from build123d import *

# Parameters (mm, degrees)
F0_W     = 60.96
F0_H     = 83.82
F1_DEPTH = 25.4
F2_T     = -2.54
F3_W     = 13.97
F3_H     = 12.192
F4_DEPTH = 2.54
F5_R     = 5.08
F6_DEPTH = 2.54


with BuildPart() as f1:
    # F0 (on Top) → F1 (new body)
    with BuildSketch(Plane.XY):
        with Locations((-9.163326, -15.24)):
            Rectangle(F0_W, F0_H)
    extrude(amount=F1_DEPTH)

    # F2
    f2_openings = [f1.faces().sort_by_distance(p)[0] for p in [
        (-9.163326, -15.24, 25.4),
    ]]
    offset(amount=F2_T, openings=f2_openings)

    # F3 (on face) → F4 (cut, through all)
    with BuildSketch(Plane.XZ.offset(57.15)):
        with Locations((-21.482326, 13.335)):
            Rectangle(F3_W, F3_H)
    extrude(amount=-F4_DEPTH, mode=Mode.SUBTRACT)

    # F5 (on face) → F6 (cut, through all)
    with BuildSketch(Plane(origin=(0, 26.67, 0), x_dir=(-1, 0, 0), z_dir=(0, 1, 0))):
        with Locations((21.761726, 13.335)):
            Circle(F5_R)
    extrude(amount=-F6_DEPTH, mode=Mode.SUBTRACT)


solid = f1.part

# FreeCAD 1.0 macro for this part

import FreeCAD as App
import Part
import Sketcher
Q = App.Units.Quantity


def faces_at(feature, points):
    """Names of the faces that lie closest to the given points."""
    faces = feature.Shape.Faces
    near = lambda p: min(range(len(faces)), key=lambda i: faces[i].distToShape(Part.Vertex(*p))[0])
    return sorted({f"Face{near(p) + 1}" for p in points})


def add_polygon(sketch, points):
    """Adds a closed chain of lines whose ends are joined by coincident constraints."""
    first, n = sketch.GeometryCount, len(points)
    for a, b in zip(points, points[1:] + points[:1]):
        sketch.addGeometry(Part.LineSegment(App.Vector(*a, 0), App.Vector(*b, 0)), False)
    for i in range(n):
        sketch.addConstraint(Sketcher.Constraint("Coincident", first + i, 2, first + (i + 1) % n, 1))

doc = App.newDocument("Part")
body = doc.addObject("PartDesign::Body", "Body")

sketch1 = body.newObject("Sketcher::SketchObject", "Sketch")
sketch1.AttachmentSupport = (doc.getObject("XY_Plane"), [""])
sketch1.MapMode = "FlatFace"
add_polygon(sketch1, [(-39.643326, 26.67), (-39.643326, -57.15), (21.316674, -57.15), (21.316674, 26.67)])
sketch1.addConstraint([
    Sketcher.Constraint("Vertical", 0),
    Sketcher.Constraint("Horizontal", 1),
    Sketcher.Constraint("Vertical", 2),
    Sketcher.Constraint("Horizontal", 3),
    Sketcher.Constraint("DistanceX", 1, 1, 1, 2, Q("2.4 in")),
    Sketcher.Constraint("DistanceY", 0, 2, 0, 1, Q("3.3 in")),
    Sketcher.Constraint("DistanceY", 0, 2, -1, 1, Q("2.25 in")),
    Sketcher.Constraint("DistanceX", 0, 2, -1, 1, Q("39.643326 mm")),
])
pad1 = body.newObject("PartDesign::Pad", "Pad")
pad1.Profile = sketch1
pad1.Length = Q("1 in")
doc.recompute()

thickness = body.newObject("PartDesign::Thickness", "Thickness")
thickness.Base = (pad1, faces_at(pad1, [(-9.163, -15.24, 25.4)]))
thickness.Value = Q("0.1 in")
thickness.Reversed = True
thickness.Join = "Arc"

sketch2 = body.newObject("Sketcher::SketchObject", "Sketch001")
sketch2.AttachmentSupport = (doc.getObject("XZ_Plane"), [""])
sketch2.MapMode = "FlatFace"
sketch2.AttachmentOffset = App.Placement(App.Vector(0, 0, 2.25 * 25.4), App.Rotation())
add_polygon(sketch2, [(-28.467326, 19.431), (-28.467326, 7.239), (-14.497326, 7.239), (-14.497326, 19.431)])
sketch2.addConstraint([
    Sketcher.Constraint("Vertical", 0),
    Sketcher.Constraint("Horizontal", 1),
    Sketcher.Constraint("Vertical", 2),
    Sketcher.Constraint("Horizontal", 3),
    Sketcher.Constraint("DistanceX", 1, 1, 1, 2, Q("0.55 in")),
    Sketcher.Constraint("DistanceY", 0, 2, 0, 1, Q("0.48 in")),
    Sketcher.Constraint("DistanceY", -1, 1, 0, 2, Q("0.285 in")),
    Sketcher.Constraint("DistanceX", 0, 2, -1, 1, Q("28.467326 mm")),
])
pocket1 = body.newObject("PartDesign::Pocket", "Pocket")
pocket1.Profile = sketch2
pocket1.Length = Q("0.1 in")

sketch3 = body.newObject("Sketcher::SketchObject", "Sketch002")
sketch3.AttachmentSupport = (doc.getObject("XZ_Plane"), [""])
sketch3.MapMode = "FlatFace"
sketch3.AttachmentOffset = App.Placement(App.Vector(0, 0, -1.05 * 25.4), App.Rotation())
sketch3.addGeometry(Part.Circle(App.Vector(-21.761726, 13.335, 0), App.Vector(0, 0, 1), 5.08), False)
sketch3.addConstraint([
    Sketcher.Constraint("Diameter", 0, Q("0.4 in")),
    Sketcher.Constraint("DistanceY", -1, 1, 0, 3, Q("0.525 in")),
    Sketcher.Constraint("DistanceX", 0, 3, -1, 1, Q("21.761726 mm")),
])
pocket2 = body.newObject("PartDesign::Pocket", "Pocket001")
pocket2.Profile = sketch3
pocket2.Type = "ThroughAll"
pocket2.Reversed = True

doc.recompute()
